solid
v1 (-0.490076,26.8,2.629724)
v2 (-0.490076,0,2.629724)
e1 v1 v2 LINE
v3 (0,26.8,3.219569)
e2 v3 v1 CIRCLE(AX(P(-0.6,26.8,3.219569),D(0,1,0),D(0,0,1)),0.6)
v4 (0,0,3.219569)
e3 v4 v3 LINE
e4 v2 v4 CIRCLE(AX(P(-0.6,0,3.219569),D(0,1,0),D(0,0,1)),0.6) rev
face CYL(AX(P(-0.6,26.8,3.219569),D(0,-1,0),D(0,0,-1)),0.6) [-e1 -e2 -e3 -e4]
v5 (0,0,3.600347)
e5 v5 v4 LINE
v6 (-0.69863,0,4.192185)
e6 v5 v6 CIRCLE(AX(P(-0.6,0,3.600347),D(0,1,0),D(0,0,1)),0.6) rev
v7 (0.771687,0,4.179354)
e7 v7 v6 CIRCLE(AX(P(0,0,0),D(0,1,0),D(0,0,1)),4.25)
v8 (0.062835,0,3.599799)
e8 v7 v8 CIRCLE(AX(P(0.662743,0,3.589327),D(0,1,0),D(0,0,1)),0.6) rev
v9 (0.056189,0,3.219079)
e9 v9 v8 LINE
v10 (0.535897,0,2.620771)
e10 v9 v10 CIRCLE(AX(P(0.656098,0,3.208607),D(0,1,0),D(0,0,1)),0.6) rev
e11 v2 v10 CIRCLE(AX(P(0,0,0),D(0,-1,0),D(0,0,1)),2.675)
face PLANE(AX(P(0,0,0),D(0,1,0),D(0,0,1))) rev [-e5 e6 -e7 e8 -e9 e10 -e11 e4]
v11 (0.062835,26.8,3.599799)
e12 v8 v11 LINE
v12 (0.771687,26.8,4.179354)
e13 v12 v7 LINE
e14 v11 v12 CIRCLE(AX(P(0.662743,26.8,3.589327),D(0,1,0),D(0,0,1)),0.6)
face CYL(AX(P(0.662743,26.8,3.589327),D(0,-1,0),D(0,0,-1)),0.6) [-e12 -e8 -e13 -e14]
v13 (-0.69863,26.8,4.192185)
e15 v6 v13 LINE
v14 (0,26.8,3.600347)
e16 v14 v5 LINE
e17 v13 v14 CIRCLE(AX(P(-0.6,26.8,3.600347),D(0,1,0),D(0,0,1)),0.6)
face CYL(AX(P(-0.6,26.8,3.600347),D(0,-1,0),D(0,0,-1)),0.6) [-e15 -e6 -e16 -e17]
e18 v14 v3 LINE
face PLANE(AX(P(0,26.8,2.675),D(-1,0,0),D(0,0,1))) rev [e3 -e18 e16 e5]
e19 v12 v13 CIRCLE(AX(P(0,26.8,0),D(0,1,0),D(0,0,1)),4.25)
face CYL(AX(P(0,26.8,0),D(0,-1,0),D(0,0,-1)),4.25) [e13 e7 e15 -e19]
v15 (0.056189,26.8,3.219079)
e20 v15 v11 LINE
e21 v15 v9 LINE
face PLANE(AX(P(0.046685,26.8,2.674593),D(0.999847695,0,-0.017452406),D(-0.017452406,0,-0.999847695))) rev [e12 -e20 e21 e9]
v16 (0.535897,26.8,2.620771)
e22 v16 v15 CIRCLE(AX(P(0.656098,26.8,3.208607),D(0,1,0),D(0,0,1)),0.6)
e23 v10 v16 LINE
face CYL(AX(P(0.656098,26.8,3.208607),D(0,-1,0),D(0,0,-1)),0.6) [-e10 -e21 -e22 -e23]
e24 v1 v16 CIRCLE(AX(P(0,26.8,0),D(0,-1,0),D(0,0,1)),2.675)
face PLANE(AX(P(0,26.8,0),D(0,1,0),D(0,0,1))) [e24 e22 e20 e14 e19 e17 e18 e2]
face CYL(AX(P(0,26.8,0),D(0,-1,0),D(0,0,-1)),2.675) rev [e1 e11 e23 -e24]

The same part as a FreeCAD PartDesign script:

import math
import FreeCAD as App
import Part
import Sketcher
Q = App.Units.Quantity


def edges_at(feature, points):
    """Names of the edges that pass closest to the given points."""
    edges = feature.Shape.Edges
    near = lambda p: min(range(len(edges)), key=lambda i: edges[i].distToShape(Part.Vertex(*p))[0])
    return sorted({f"Edge{near(p) + 1}" for p in points})

doc = App.newDocument("Part")
body = doc.addObject("PartDesign::Body", "Body")

# Sketch on XZ plane
sketch1 = body.newObject("Sketcher::SketchObject", "Sketch")
sketch1.AttachmentSupport = (doc.getObject("XZ_Plane"), [""])
sketch1.MapMode = "FlatFace"
sketch1.addGeometry([
    Part.LineSegment(App.Vector(0.046685, 2.674593, 0), App.Vector(0.074173, 4.249353, 0)),
    Part.ArcOfCircle(Part.Circle(App.Vector(0, 0, 0), App.Vector(0, 0, 1), 4.25), math.radians(90), math.radians(449)),
    Part.LineSegment(App.Vector(0, 4.25, 0), App.Vector(0, 2.675, 0)),
    Part.ArcOfCircle(Part.Circle(App.Vector(0, 0, 0), App.Vector(0, 0, 1), 2.675), math.radians(90.000001), math.radians(449.000001)),
], False)
sketch1.addConstraint([
    Sketcher.Constraint("Coincident", 0, 2, 1, 2),
    Sketcher.Constraint("Coincident", 1, 1, 2, 1),
    Sketcher.Constraint("Coincident", 2, 2, 3, 1),
    Sketcher.Constraint("Coincident", 3, 2, 0, 1),
    Sketcher.Constraint("Vertical", 2),
    Sketcher.Constraint("Coincident", 1, 3, -1, 1),
    Sketcher.Constraint("Coincident", 3, 3, -1, 1),
    Sketcher.Constraint("PointOnObject", 1, 1, -2),
    Sketcher.Constraint("Angle", 0, Q("89 deg")),
    Sketcher.Constraint("Radius", 1, 4.25),
    Sketcher.Constraint("Radius", 3, 2.675),
    Sketcher.Constraint("DistanceX", -1, 1, 0, 2, 0.074173),
])
pad1 = body.newObject("PartDesign::Pad", "Pad")
pad1.Profile = sketch1
pad1.Length = 26.8
pad1.Reversed = True
doc.recompute()

fillet = body.newObject("PartDesign::Fillet", "Fillet")
fillet.Base = (pad1, edges_at(pad1, [
    (0, 13.4, 2.675),
    (0, 13.4, 4.25),
    (0.074, 13.4, 4.249),
    (0.047, 13.4, 2.675),
]))
fillet.Radius = 0.6

doc.recompute()
